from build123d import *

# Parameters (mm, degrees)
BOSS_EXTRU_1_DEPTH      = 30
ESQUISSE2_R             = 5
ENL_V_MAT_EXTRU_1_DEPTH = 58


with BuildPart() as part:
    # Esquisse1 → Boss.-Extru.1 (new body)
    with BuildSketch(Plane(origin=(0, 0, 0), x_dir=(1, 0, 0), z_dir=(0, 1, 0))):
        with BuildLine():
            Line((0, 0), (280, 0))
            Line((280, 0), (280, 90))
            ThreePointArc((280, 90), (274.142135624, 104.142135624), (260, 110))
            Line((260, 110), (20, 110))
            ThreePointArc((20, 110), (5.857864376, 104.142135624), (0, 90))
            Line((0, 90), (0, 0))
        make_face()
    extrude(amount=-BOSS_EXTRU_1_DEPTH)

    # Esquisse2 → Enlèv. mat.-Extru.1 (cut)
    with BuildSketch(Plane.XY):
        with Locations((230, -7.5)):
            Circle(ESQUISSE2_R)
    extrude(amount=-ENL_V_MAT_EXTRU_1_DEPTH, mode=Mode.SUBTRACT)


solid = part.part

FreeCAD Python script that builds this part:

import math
import FreeCAD as App
import Part
import Sketcher
from FreeCAD import Vector
Q = App.Units.Quantity

doc = App.newDocument("Part")
body = doc.addObject("PartDesign::Body", "Body")

# Sketch on XZ plane
sketch1 = body.newObject("Sketcher::SketchObject", "Sketch")
sketch1.AttachmentSupport = (doc.getObject("XZ_Plane"), [""])
sketch1.MapMode = "FlatFace"
sketch1.addGeometry(Part.LineSegment(Vector(0, 0, 0), Vector(280, 0, 0)), False)
sketch1.addGeometry(Part.LineSegment(Vector(280, 0, 0), Vector(280, -90, 0)), False)
sketch1.addGeometry(Part.ArcOfCircle(Part.Circle(Vector(260, -90, 0), Vector(0, 0, 1), 20), math.radians(-90), math.radians(0)), False)
sketch1.addGeometry(Part.LineSegment(Vector(260, -110, 0), Vector(20, -110, 0)), False)
sketch1.addGeometry(Part.ArcOfCircle(Part.Circle(Vector(20, -90, 0), Vector(0, 0, 1), 20), math.radians(180), math.radians(270)), False)
sketch1.addGeometry(Part.LineSegment(Vector(0, -90, 0), Vector(0, 0, 0)), False)
sketch1.addConstraint(Sketcher.Constraint("Coincident", 0, 2, 1, 1))
sketch1.addConstraint(Sketcher.Constraint("Tangent", 1, 2, 2, 2))
sketch1.addConstraint(Sketcher.Constraint("Tangent", 2, 1, 3, 1))
sketch1.addConstraint(Sketcher.Constraint("Tangent", 3, 2, 4, 2))
sketch1.addConstraint(Sketcher.Constraint("Tangent", 4, 1, 5, 1))
sketch1.addConstraint(Sketcher.Constraint("Coincident", 5, 2, 0, 1))
sketch1.addConstraint(Sketcher.Constraint("Horizontal", 0))
sketch1.addConstraint(Sketcher.Constraint("Vertical", 1))
sketch1.addConstraint(Sketcher.Constraint("Horizontal", 3))
sketch1.addConstraint(Sketcher.Constraint("Vertical", 5))
sketch1.addConstraint(Sketcher.Constraint("Coincident", 5, 2, -1, 1))
sketch1.addConstraint(Sketcher.Constraint("Equal", 2, 4))
sketch1.addConstraint(Sketcher.Constraint("Radius", 2, Q("20 mm")))
sketch1.addConstraint(Sketcher.Constraint("DistanceX", 0, 1, 0, 2, Q("280 mm")))
sketch1.addConstraint(Sketcher.Constraint("DistanceY", 1, 2, 1, 1, Q("90 mm")))
pad1 = body.newObject("PartDesign::Pad", "Pad")
pad1.Profile = sketch1
pad1.Length = 30

# Sketch on XY plane
sketch2 = body.newObject("Sketcher::SketchObject", "Sketch001")
sketch2.AttachmentSupport = (doc.getObject("XY_Plane"), [""])
sketch2.MapMode = "FlatFace"
sketch2.addGeometry(Part.Circle(Vector(230, -8, 0), Vector(0, 0, 1), 5), False)
sketch2.addConstraint(Sketcher.Constraint("Diameter", 0, Q("10 mm")))
sketch2.addConstraint(Sketcher.Constraint("DistanceX", -1, 1, 0, 3, Q("230 mm")))
sketch2.addConstraint(Sketcher.Constraint("DistanceY", 0, 3, -1, 1, Q("7.5 mm")))
pocket1 = body.newObject("PartDesign::Pocket", "Pocket")
pocket1.Profile = sketch2
pocket1.Length = 58

doc.recompute()
